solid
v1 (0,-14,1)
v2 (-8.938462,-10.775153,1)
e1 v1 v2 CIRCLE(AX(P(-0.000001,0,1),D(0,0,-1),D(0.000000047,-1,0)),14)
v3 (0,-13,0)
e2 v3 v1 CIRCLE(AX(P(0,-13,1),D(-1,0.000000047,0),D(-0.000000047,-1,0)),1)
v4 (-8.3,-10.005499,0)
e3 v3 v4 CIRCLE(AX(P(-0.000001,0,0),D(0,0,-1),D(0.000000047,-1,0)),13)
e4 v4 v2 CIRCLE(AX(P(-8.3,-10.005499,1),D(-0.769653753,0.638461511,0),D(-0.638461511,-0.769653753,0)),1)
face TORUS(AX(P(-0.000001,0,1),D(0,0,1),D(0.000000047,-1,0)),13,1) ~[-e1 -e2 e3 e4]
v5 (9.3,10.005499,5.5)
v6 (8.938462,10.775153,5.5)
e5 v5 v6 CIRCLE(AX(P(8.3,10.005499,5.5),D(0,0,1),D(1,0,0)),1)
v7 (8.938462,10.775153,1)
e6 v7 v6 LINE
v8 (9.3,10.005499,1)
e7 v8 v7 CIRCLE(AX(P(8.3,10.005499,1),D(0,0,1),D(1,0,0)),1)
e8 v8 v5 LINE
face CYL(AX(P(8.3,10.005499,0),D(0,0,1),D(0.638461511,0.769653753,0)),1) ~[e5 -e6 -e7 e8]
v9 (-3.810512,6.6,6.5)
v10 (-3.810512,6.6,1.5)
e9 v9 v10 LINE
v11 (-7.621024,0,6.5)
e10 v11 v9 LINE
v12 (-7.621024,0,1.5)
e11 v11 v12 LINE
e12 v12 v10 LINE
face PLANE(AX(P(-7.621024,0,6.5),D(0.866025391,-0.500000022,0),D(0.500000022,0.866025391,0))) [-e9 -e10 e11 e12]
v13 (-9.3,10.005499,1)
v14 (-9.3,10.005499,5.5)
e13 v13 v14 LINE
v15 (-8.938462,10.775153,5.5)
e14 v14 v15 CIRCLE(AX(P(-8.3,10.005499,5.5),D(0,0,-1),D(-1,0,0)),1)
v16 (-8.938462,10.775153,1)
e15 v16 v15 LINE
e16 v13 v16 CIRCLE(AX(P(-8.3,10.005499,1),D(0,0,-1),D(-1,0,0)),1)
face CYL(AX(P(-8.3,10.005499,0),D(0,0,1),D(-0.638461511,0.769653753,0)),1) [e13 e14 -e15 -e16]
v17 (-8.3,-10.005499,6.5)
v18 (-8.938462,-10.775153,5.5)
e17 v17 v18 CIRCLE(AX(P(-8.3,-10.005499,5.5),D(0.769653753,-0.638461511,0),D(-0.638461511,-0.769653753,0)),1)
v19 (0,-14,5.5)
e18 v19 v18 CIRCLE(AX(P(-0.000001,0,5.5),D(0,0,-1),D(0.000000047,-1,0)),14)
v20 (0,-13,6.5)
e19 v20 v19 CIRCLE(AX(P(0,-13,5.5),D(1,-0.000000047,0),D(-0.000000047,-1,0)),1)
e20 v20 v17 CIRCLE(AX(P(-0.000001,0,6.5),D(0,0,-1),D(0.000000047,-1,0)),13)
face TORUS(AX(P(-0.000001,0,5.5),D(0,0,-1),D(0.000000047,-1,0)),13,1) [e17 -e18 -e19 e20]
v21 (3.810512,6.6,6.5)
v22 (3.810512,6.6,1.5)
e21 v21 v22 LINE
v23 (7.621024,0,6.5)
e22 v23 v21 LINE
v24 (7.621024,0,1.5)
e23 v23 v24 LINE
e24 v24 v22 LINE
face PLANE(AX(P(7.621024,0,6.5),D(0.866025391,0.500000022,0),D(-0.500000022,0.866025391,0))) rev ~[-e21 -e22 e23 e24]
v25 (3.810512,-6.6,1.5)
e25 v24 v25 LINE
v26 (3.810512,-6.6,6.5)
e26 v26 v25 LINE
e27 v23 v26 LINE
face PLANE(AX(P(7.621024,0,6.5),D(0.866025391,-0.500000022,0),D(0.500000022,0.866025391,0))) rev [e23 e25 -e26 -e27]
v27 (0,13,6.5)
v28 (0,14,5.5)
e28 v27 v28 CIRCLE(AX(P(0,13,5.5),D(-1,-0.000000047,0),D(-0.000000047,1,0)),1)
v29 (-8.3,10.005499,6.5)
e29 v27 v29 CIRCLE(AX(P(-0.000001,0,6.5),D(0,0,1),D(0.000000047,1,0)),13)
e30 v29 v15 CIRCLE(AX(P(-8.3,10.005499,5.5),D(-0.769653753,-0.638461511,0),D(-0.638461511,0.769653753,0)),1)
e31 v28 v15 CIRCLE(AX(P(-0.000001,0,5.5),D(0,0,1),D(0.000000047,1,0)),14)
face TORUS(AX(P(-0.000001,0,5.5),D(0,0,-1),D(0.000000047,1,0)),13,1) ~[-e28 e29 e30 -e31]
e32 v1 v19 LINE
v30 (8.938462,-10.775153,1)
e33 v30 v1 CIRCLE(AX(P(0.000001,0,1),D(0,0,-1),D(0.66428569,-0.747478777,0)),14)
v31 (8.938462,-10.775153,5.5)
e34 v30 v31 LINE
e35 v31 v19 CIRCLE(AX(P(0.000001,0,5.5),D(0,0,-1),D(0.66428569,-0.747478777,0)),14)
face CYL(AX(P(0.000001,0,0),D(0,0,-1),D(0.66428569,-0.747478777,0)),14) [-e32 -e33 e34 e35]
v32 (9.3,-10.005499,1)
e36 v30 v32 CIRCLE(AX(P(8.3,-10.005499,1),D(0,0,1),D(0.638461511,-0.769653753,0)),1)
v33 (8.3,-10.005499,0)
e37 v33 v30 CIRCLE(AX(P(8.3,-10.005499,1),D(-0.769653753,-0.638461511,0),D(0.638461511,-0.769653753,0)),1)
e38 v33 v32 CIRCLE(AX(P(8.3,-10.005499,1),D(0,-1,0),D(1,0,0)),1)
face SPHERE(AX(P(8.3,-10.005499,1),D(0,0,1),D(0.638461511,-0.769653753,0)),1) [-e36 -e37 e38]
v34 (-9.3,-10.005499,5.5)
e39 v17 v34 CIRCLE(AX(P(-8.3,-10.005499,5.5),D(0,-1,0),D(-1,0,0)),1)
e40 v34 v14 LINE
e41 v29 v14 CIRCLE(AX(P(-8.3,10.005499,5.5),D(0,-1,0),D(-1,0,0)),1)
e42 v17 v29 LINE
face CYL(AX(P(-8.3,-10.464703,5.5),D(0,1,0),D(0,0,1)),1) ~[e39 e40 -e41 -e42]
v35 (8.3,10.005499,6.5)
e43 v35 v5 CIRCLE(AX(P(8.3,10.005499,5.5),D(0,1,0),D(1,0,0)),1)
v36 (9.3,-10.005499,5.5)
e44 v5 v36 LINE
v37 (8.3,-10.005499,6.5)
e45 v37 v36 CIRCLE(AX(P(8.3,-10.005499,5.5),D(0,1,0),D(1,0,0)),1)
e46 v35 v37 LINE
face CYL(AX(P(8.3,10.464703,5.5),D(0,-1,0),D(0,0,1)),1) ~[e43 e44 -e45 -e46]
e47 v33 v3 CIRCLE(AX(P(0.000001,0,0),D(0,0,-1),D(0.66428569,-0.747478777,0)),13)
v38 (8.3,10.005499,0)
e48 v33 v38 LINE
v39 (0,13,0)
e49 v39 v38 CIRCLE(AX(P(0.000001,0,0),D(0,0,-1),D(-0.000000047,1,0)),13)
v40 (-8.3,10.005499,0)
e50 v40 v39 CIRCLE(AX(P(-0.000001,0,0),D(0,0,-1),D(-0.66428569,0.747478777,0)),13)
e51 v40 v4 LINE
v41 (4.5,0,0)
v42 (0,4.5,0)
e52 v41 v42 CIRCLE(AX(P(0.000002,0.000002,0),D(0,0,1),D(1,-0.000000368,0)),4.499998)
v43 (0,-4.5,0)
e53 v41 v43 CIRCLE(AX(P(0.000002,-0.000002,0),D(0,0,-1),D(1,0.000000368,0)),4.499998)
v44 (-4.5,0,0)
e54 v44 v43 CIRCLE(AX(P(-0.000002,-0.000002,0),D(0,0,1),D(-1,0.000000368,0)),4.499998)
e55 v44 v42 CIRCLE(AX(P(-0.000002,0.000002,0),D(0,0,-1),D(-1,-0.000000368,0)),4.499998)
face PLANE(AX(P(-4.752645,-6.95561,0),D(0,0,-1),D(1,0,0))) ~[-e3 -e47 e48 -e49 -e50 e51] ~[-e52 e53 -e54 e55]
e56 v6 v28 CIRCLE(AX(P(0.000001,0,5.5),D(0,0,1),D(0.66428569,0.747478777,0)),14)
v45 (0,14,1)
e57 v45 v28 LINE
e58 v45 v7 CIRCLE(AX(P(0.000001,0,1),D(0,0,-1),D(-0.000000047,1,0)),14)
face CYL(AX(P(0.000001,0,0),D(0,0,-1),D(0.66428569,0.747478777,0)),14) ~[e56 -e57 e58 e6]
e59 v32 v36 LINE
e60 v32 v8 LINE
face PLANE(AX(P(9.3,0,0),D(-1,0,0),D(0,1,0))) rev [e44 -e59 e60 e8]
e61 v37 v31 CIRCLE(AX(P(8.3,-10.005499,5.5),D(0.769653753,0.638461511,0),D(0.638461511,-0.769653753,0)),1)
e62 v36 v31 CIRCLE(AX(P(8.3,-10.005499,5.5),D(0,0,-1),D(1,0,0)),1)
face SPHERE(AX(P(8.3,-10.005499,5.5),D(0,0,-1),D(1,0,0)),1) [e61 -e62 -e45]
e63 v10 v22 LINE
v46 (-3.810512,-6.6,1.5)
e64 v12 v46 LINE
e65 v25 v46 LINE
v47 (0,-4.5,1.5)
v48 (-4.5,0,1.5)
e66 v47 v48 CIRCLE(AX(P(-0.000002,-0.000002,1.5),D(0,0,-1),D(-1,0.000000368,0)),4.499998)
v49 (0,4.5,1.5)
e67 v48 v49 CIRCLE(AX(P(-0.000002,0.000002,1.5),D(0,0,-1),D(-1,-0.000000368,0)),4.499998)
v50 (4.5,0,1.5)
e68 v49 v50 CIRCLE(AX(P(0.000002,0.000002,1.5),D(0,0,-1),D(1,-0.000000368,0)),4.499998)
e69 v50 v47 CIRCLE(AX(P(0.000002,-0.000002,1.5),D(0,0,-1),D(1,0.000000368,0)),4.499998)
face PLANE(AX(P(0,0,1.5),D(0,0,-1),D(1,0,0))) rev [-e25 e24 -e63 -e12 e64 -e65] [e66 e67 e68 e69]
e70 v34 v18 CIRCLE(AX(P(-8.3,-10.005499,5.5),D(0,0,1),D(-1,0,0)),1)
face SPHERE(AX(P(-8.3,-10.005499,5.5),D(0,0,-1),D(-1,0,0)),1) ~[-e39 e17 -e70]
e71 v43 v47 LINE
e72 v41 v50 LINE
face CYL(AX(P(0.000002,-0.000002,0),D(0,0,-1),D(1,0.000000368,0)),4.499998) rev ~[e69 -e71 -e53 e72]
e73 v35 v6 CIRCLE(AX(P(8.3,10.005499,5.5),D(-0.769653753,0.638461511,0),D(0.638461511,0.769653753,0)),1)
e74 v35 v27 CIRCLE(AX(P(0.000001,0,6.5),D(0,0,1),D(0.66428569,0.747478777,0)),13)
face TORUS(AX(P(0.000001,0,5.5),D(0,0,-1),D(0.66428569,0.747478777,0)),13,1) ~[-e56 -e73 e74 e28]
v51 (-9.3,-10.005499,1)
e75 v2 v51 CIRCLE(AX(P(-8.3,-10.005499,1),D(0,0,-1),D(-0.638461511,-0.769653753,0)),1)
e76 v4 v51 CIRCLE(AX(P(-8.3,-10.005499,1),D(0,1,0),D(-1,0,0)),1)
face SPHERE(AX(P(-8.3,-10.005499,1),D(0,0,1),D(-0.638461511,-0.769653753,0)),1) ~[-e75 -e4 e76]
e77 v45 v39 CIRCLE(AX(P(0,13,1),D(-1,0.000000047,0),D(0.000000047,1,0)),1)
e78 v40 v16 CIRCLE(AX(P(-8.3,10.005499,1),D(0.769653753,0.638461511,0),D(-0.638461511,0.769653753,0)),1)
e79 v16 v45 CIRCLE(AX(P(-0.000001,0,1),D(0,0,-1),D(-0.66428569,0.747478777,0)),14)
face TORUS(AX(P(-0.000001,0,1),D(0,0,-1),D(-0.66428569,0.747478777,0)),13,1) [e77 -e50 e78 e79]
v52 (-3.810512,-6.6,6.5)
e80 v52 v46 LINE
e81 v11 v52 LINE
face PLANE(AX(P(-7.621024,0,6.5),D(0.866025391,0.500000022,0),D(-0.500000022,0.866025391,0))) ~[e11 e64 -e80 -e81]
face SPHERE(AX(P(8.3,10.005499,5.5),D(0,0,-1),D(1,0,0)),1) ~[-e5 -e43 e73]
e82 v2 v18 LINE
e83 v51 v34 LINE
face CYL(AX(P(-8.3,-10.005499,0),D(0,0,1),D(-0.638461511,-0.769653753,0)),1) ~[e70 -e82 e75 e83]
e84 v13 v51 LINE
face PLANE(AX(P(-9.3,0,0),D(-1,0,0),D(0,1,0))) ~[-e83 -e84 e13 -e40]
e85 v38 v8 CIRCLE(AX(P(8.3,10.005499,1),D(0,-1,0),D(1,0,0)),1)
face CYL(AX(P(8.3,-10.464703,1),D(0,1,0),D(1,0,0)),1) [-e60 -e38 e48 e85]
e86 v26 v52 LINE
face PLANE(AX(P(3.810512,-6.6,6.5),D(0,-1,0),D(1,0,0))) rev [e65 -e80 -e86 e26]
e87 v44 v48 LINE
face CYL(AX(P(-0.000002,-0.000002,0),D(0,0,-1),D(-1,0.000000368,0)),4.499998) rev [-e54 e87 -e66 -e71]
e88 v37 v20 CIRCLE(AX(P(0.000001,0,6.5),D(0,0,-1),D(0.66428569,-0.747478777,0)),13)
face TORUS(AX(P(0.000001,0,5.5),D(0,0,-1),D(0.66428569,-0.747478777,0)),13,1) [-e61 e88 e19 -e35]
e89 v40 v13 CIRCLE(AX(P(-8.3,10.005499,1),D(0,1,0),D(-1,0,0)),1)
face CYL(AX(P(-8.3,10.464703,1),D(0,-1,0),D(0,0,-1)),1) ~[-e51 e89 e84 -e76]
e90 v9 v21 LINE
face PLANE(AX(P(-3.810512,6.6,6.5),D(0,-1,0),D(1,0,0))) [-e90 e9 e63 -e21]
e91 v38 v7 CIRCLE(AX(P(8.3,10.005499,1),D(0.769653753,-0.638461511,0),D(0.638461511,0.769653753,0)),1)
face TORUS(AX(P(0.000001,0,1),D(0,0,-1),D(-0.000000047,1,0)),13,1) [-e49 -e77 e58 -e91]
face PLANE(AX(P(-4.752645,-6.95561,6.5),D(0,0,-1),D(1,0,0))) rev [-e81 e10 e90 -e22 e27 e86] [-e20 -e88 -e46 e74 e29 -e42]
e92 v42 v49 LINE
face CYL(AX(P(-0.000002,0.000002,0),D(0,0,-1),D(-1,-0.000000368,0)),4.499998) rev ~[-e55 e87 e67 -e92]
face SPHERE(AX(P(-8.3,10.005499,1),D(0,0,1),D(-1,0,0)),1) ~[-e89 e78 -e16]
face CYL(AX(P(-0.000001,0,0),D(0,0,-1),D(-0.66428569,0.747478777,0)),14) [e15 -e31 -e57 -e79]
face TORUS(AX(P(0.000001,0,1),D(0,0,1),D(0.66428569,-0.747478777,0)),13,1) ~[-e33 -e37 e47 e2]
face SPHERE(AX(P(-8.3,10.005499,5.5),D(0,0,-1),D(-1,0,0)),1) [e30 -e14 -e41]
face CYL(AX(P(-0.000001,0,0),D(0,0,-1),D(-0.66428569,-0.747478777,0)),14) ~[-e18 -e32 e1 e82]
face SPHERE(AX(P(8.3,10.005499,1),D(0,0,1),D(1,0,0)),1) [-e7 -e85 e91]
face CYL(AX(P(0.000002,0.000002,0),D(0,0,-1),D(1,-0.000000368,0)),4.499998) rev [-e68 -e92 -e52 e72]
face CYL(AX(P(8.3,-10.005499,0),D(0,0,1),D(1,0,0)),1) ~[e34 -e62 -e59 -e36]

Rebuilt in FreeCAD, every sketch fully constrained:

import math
import FreeCAD as App
import Part
import Sketcher

V = App.Vector
Q = App.Units.Quantity


def edges_at(feature, points):
    """Names of the edges that pass closest to the given points."""
    edges = feature.Shape.Edges
    near = lambda p: min(range(len(edges)), key=lambda i: edges[i].distToShape(Part.Vertex(*p))[0])
    return sorted({f"Edge{near(p) + 1}" for p in points})

doc = App.newDocument("Part")
body = doc.addObject("PartDesign::Body", "Body")

sketch1 = doc.addObject("Sketcher::SketchObject", "Sketch")
body.addObject(sketch1)
sketch1.AttachmentSupport = (doc.XY_Plane, [""])
sketch1.MapMode = "FlatFace"
sketch1.addGeometry([
    Part.ArcOfCircle(Part.Circle(V(0.000001, 0, 0), V(0, 0, 1), 14), math.radians(48.372451), math.radians(90.000003)),
    Part.LineSegment(V(0, 14, 0), V(0, 4.5, 0)),
    Part.ArcOfCircle(Part.Circle(V(0.000002, 0.000002, 0), V(0, 0, 1), 4.499998), math.radians(-0.000021), math.radians(90.000021)),
    Part.LineSegment(V(4.5, 0, 0), V(9.3, 0, 0)),
    Part.LineSegment(V(9.3, 0, 0), V(9.3, 10.464703, 0)),
], False)
sketch1.addConstraint([
    Sketcher.Constraint("Coincident", 0, 2, 1, 1),
    Sketcher.Constraint("Coincident", 1, 2, 2, 2),
    Sketcher.Constraint("Coincident", 2, 1, 3, 1),
    Sketcher.Constraint("Coincident", 3, 2, 4, 1),
    Sketcher.Constraint("Coincident", 4, 2, 0, 1),
    Sketcher.Constraint("Vertical", 1),
    Sketcher.Constraint("Horizontal", 3),
    Sketcher.Constraint("Vertical", 4),
    Sketcher.Constraint("Coincident", 0, 3, -1, 1),
    Sketcher.Constraint("Coincident", 2, 3, -1, 1),
    Sketcher.Constraint("PointOnObject", 0, 2, -2),
    Sketcher.Constraint("PointOnObject", 2, 1, -1),
    Sketcher.Constraint("Radius", 0, Q("14 mm")),
    Sketcher.Constraint("Radius", 2, Q("4.499998 mm")),
    Sketcher.Constraint("DistanceX", 3, 1, 3, 2, Q("4.8 mm")),
])
pad1 = doc.addObject("PartDesign::Pad", "Pad")
body.addObject(pad1)
pad1.Profile = sketch1
pad1.Length = 6.5

sketch2 = doc.addObject("Sketcher::SketchObject", "Sketch001")
body.addObject(sketch2)
sketch2.AttachmentSupport = (doc.XY_Plane, [""])
sketch2.MapMode = "FlatFace"
sketch2.AttachmentOffset = App.Placement(V(0, 0, 6.5), App.Rotation())
sketch2.addGeometry([
    Part.LineSegment(V(7.621024, 0, 0), V(3.810512, 6.6, 0)),
    Part.LineSegment(V(3.810512, 6.6, 0), V(-3.810512, 6.6, 0)),
    Part.LineSegment(V(-3.810512, 6.6, 0), V(-7.621024, 0, 0)),
    Part.LineSegment(V(-7.621024, 0, 0), V(-3.810512, -6.6, 0)),
    Part.LineSegment(V(-3.810512, -6.6, 0), V(3.810512, -6.6, 0)),
    Part.LineSegment(V(3.810512, -6.6, 0), V(7.621024, 0, 0)),
], False)
sketch2.addConstraint([
    Sketcher.Constraint("Coincident", 0, 2, 1, 1),
    Sketcher.Constraint("Coincident", 1, 2, 2, 1),
    Sketcher.Constraint("Coincident", 2, 2, 3, 1),
    Sketcher.Constraint("Coincident", 3, 2, 4, 1),
    Sketcher.Constraint("Coincident", 4, 2, 5, 1),
    Sketcher.Constraint("Coincident", 5, 2, 0, 1),
    Sketcher.Constraint("Horizontal", 1),
    Sketcher.Constraint("Horizontal", 4),
    Sketcher.Constraint("Symmetric", 0, 2, 3, 2, -1, 1),
    Sketcher.Constraint("Symmetric", 2, 2, 5, 2, -1, 1),
    Sketcher.Constraint("PointOnObject", 2, 2, -1),
    Sketcher.Constraint("Parallel", 2, 5),
    Sketcher.Constraint("Vertical", 1, 2, 3, 2),
    Sketcher.Constraint("Angle", 0, Q("120.000001 deg")),
    Sketcher.Constraint("DistanceY", -1, 1, 0, 2, Q("6.6 mm")),
    Sketcher.Constraint("DistanceX", 1, 2, 1, 1, Q("7.621024 mm")),
])
pocket1 = doc.addObject("PartDesign::Pocket", "Pocket")
body.addObject(pocket1)
pocket1.Profile = sketch2
pocket1.Length = 5

sketch3 = doc.addObject("Sketcher::SketchObject", "Sketch002")
body.addObject(sketch3)
sketch3.AttachmentSupport = (doc.XY_Plane, [""])
sketch3.MapMode = "FlatFace"
sketch3.addGeometry([
    Part.ArcOfCircle(Part.Circle(V(-0.000001, 0, 0), V(0, 0, 1), 14), math.radians(89.999997), math.radians(131.627549)),
    Part.LineSegment(V(0, 14, 0), V(0, 4.5, 0)),
    Part.ArcOfCircle(Part.Circle(V(-0.000002, 0.000002, 0), V(0, 0, 1), 4.499998), math.radians(89.999979), math.radians(180.000021)),
    Part.LineSegment(V(-4.5, 0, 0), V(-9.3, 0, 0)),
    Part.LineSegment(V(-9.3, 0, 0), V(-9.3, 10.464703, 0)),
], False)
sketch3.addConstraint([
    Sketcher.Constraint("Coincident", 0, 1, 1, 1),
    Sketcher.Constraint("Coincident", 1, 2, 2, 1),
    Sketcher.Constraint("Coincident", 2, 2, 3, 1),
    Sketcher.Constraint("Coincident", 3, 2, 4, 1),
    Sketcher.Constraint("Coincident", 4, 2, 0, 2),
    Sketcher.Constraint("Vertical", 1),
    Sketcher.Constraint("Horizontal", 3),
    Sketcher.Constraint("Vertical", 4),
    Sketcher.Constraint("Coincident", 0, 3, -1, 1),
    Sketcher.Constraint("Coincident", 2, 3, -1, 1),
    Sketcher.Constraint("PointOnObject", 0, 1, -2),
    Sketcher.Constraint("PointOnObject", 2, 2, -1),
    Sketcher.Constraint("Radius", 0, Q("14 mm")),
    Sketcher.Constraint("Radius", 2, Q("4.499998 mm")),
    Sketcher.Constraint("DistanceX", 3, 2, 3, 1, Q("4.8 mm")),
])
pad2 = doc.addObject("PartDesign::Pad", "Pad001")
body.addObject(pad2)
pad2.Profile = sketch3
pad2.Length = 6.5

sketch4 = doc.addObject("Sketcher::SketchObject", "Sketch003")
body.addObject(sketch4)
sketch4.AttachmentSupport = (doc.XY_Plane, [""])
sketch4.MapMode = "FlatFace"
sketch4.AttachmentOffset = App.Placement(V(0, 0, 6.5), App.Rotation())
sketch4.addGeometry([
    Part.LineSegment(V(-7.621024, 0, 0), V(-3.810512, 6.6, 0)),
    Part.LineSegment(V(-3.810512, 6.6, 0), V(3.810512, 6.6, 0)),
    Part.LineSegment(V(3.810512, 6.6, 0), V(7.621024, 0, 0)),
    Part.LineSegment(V(7.621024, 0, 0), V(3.810512, -6.6, 0)),
    Part.LineSegment(V(3.810512, -6.6, 0), V(-3.810512, -6.6, 0)),
    Part.LineSegment(V(-3.810512, -6.6, 0), V(-7.621024, 0, 0)),
], False)
sketch4.addConstraint([
    Sketcher.Constraint("Coincident", 0, 2, 1, 1),
    Sketcher.Constraint("Coincident", 1, 2, 2, 1),
    Sketcher.Constraint("Coincident", 2, 2, 3, 1),
    Sketcher.Constraint("Coincident", 3, 2, 4, 1),
    Sketcher.Constraint("Coincident", 4, 2, 5, 1),
    Sketcher.Constraint("Coincident", 5, 2, 0, 1),
    Sketcher.Constraint("Horizontal", 1),
    Sketcher.Constraint("Horizontal", 4),
    Sketcher.Constraint("Symmetric", 0, 2, 3, 2, -1, 1),
    Sketcher.Constraint("Symmetric", 2, 2, 5, 2, -1, 1),
    Sketcher.Constraint("PointOnObject", 2, 2, -1),
    Sketcher.Constraint("Parallel", 2, 5),
    Sketcher.Constraint("Vertical", 1, 2, 3, 2),
    Sketcher.Constraint("Angle", 0, Q("59.999999 deg")),
    Sketcher.Constraint("DistanceY", -1, 1, 0, 2, Q("6.6 mm")),
    Sketcher.Constraint("DistanceX", 1, 1, 1, 2, Q("7.621024 mm")),
])
pocket2 = doc.addObject("PartDesign::Pocket", "Pocket001")
body.addObject(pocket2)
pocket2.Profile = sketch4
pocket2.Length = 5
doc.recompute()

mirrored = doc.addObject("PartDesign::Mirrored", "Mirrored")
body.addObject(mirrored)
mirrored.Originals = [pad1, pocket1, pad2, pocket2]
mirrored.MirrorPlane = (doc.XZ_Plane, [""])
body.Tip = mirrored
doc.recompute()

fillet = doc.addObject("PartDesign::Fillet", "Fillet")
body.addObject(fillet)
fillet.Base = (mirrored, edges_at(mirrored, [
    (-9.3, 0, 6.5),
    (9.3, 0, 6.5),
    (4.975, -13.086, 6.5),
    (4.975, 13.086, 6.5),
    (4.975, -13.086, 0),
    (9.3, 0, 0),
    (-9.3, 0, 0),
    (-4.975, 13.086, 0),
    (9.3, -10.465, 3.25),
    (-9.3, -10.465, 3.25),
    (-9.3, 10.465, 3.25),
    (9.3, 10.465, 3.25),
]))
fillet.Radius = 1

doc.recompute()
